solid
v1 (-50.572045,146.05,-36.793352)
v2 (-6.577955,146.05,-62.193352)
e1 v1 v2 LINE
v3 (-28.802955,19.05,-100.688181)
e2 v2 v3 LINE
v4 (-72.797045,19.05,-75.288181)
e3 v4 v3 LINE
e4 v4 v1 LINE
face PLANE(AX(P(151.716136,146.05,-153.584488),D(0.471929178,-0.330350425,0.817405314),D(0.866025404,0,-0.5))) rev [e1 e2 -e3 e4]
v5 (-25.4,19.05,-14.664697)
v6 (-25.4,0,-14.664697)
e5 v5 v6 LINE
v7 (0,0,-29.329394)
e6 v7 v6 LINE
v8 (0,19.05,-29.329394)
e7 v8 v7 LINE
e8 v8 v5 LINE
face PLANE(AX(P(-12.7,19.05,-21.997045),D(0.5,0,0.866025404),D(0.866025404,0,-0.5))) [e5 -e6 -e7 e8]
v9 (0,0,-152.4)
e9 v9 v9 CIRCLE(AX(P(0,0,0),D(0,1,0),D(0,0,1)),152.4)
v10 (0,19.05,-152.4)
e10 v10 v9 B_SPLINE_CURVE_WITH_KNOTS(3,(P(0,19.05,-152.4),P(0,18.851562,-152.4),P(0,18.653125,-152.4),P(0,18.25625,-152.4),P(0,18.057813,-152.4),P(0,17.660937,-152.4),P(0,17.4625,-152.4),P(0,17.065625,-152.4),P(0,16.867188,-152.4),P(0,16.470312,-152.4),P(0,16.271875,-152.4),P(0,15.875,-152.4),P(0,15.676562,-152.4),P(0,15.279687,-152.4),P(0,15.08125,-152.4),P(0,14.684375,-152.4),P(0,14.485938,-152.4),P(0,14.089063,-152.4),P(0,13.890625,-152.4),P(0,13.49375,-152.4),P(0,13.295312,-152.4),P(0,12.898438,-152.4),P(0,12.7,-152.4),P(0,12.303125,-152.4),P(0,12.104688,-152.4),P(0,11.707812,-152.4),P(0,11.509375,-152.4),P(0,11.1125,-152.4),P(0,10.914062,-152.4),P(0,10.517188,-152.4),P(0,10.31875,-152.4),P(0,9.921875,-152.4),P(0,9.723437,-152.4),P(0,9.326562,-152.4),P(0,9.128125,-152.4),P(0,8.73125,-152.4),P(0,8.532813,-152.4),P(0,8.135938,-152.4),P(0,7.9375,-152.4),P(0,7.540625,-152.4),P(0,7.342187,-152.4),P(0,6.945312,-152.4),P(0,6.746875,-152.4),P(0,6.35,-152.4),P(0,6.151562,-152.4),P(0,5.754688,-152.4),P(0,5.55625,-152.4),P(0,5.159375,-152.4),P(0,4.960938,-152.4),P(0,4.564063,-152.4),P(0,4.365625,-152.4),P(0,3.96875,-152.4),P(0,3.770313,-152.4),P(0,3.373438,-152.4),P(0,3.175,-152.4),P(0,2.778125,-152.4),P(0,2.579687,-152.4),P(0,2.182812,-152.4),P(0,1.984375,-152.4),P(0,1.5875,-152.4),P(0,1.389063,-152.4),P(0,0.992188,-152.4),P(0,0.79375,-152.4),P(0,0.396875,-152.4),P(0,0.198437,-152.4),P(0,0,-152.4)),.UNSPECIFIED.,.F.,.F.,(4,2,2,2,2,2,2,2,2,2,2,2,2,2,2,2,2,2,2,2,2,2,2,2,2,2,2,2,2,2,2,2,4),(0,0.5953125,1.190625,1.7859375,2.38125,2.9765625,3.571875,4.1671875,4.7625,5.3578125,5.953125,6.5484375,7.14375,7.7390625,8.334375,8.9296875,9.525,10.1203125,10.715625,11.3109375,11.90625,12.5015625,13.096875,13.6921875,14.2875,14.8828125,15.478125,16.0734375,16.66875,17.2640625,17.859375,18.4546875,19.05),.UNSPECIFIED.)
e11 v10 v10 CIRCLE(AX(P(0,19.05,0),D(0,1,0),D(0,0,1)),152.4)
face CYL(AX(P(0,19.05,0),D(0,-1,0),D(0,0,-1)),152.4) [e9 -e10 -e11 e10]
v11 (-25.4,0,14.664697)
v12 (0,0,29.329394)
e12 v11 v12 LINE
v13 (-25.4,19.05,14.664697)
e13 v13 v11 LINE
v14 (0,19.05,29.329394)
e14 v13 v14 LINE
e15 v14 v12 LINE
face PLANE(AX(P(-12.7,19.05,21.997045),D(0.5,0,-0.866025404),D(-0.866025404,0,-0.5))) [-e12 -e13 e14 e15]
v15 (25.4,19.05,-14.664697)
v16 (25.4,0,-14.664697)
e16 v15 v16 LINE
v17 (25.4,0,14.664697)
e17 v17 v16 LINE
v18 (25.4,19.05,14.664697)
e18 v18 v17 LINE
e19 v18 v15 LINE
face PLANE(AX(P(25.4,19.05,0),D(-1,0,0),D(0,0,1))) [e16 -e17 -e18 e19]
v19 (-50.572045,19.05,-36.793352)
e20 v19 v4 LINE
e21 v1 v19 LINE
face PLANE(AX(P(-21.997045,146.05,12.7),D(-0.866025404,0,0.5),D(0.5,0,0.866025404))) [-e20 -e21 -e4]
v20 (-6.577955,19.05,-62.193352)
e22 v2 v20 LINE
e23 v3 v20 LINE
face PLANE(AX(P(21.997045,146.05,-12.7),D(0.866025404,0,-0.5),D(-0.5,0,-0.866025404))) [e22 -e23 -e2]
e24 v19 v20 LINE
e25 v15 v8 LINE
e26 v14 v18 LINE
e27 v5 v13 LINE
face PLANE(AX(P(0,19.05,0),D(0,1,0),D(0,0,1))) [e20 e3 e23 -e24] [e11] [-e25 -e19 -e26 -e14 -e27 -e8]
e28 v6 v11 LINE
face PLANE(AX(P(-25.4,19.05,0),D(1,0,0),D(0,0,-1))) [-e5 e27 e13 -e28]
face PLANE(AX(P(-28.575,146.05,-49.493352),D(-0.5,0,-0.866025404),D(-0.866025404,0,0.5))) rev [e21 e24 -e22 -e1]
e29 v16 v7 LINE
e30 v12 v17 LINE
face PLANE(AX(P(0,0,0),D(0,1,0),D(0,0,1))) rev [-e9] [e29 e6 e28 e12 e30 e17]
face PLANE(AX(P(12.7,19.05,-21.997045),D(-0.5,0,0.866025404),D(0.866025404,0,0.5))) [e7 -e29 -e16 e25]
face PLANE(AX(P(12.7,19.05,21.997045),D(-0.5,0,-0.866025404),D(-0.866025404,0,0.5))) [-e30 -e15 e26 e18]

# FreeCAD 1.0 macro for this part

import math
import FreeCAD as App
import Part
import Sketcher

V = App.Vector
Q = App.Units.Quantity

doc = App.newDocument("Part")
params = doc.addObject("Spreadsheet::Sheet", "Params")
for row, (alias, value) in enumerate([
    ("sketch1_radius", "6 in"),
    ("pad1_length", "0.75 in"),
    ("sketch2_length", "2 in"),
    ("sketch2_length2", "1.75 in"),
    ("pad2_length", "5 in"),
    ("sketch3_height", "5 in"),
    ("sketch3_width", "1.75 in"),
], start=1):
    params.set(f"A{row}", alias)
    params.set(f"B{row}", "=" + value)
    params.setAlias(f"B{row}", alias)

body = doc.addObject("PartDesign::Body", "Body")

# Sketch on XZ plane
sketch1 = body.newObject("Sketcher::SketchObject", "Sketch")
sketch1.AttachmentSupport = (doc.getObject("XZ_Plane"), [""])
sketch1.MapMode = "FlatFace"
sketch1.addGeometry(Part.ArcOfCircle(Part.Circle(V(0, 0, 0), V(0, 0, 1), 152.4), math.radians(-180), math.radians(-167.975301)), False)
sketch1.addGeometry(Part.ArcOfCircle(Part.Circle(V(0, 0, 0), V(0, 0, 1), 152.4), math.radians(90), math.radians(180)), False)
sketch1.addGeometry(Part.ArcOfCircle(Part.Circle(V(0, 0, 0), V(0, 0, 1), 152.4), math.radians(77.975301), math.radians(90)), False)
sketch1.addGeometry(Part.ArcOfCircle(Part.Circle(V(0, 0, 0), V(0, 0, 1), 152.4), math.radians(12.024699), math.radians(77.975301)), False)
sketch1.addGeometry(Part.ArcOfCircle(Part.Circle(V(0, 0, 0), V(0, 0, 1), 152.4), math.radians(0), math.radians(12.024699)), False)
sketch1.addGeometry(Part.ArcOfCircle(Part.Circle(V(0, 0, 0), V(0, 0, 1), 152.4), math.radians(-90), math.radians(0)), False)
sketch1.addGeometry(Part.ArcOfCircle(Part.Circle(V(0, 0, 0), V(0, 0, 1), 152.4), math.radians(-102.024699), math.radians(-90)), False)
sketch1.addGeometry(Part.ArcOfCircle(Part.Circle(V(0, 0, 0), V(0, 0, 1), 152.4), math.radians(-167.975301), math.radians(-102.024699)), False)
sketch1.addGeometry(Part.LineSegment(V(-25.4, -14.664697, 0), V(0, -29.329394, 0)), False)
sketch1.addGeometry(Part.LineSegment(V(0, -29.329394, 0), V(25.4, -14.664697, 0)), False)
sketch1.addGeometry(Part.LineSegment(V(25.4, -14.664697, 0), V(25.4, 14.664697, 0)), False)
sketch1.addGeometry(Part.LineSegment(V(25.4, 14.664697, 0), V(0, 29.329394, 0)), False)
sketch1.addGeometry(Part.LineSegment(V(0, 29.329394, 0), V(-25.4, 14.664697, 0)), False)
sketch1.addGeometry(Part.LineSegment(V(-25.4, 14.664697, 0), V(-25.4, -14.664697, 0)), False)
sketch1.addConstraint(Sketcher.Constraint("Tangent", 0, 1, 1, 2))
sketch1.addConstraint(Sketcher.Constraint("Tangent", 1, 1, 2, 2))
sketch1.addConstraint(Sketcher.Constraint("Tangent", 2, 1, 3, 2))
sketch1.addConstraint(Sketcher.Constraint("Tangent", 3, 1, 4, 2))
sketch1.addConstraint(Sketcher.Constraint("Tangent", 4, 1, 5, 2))
sketch1.addConstraint(Sketcher.Constraint("Tangent", 5, 1, 6, 2))
sketch1.addConstraint(Sketcher.Constraint("Tangent", 6, 1, 7, 2))
sketch1.addConstraint(Sketcher.Constraint("Tangent", 7, 1, 0, 2))
sketch1.addConstraint(Sketcher.Constraint("Coincident", 8, 2, 9, 1))
sketch1.addConstraint(Sketcher.Constraint("Coincident", 9, 2, 10, 1))
sketch1.addConstraint(Sketcher.Constraint("Coincident", 10, 2, 11, 1))
sketch1.addConstraint(Sketcher.Constraint("Coincident", 11, 2, 12, 1))
sketch1.addConstraint(Sketcher.Constraint("Coincident", 12, 2, 13, 1))
sketch1.addConstraint(Sketcher.Constraint("Coincident", 13, 2, 8, 1))
sketch1.addConstraint(Sketcher.Constraint("Vertical", 10))
sketch1.addConstraint(Sketcher.Constraint("Vertical", 13))
sketch1.addConstraint(Sketcher.Constraint("Coincident", 0, 3, -1, 1))
sketch1.addConstraint(Sketcher.Constraint("Coincident", 2, 3, -1, 1))
sketch1.addConstraint(Sketcher.Constraint("Coincident", 4, 3, -1, 1))
sketch1.addConstraint(Sketcher.Constraint("Equal", 4, 5))
sketch1.addConstraint(Sketcher.Constraint("Symmetric", 8, 2, 11, 2, -1, 1))
sketch1.addConstraint(Sketcher.Constraint("Symmetric", 9, 2, 12, 2, -1, 1))
sketch1.addConstraint(Sketcher.Constraint("PointOnObject", 0, 1, -1))
sketch1.addConstraint(Sketcher.Constraint("PointOnObject", 1, 1, -2))
sketch1.addConstraint(Sketcher.Constraint("PointOnObject", 4, 1, -1))
sketch1.addConstraint(Sketcher.Constraint("PointOnObject", 5, 1, -2))
sketch1.addConstraint(Sketcher.Constraint("PointOnObject", 8, 2, -2))
sketch1.addConstraint(Sketcher.Constraint("Parallel", 8, 11))
sketch1.addConstraint(Sketcher.Constraint("Horizontal", 10, 2, 12, 2))
sketch1.addConstraint(Sketcher.Constraint("Radius", 0, Q("6 in")))
sketch1.addConstraint(Sketcher.Constraint("DistanceX", -1, 1, 9, 2, Q("1 in")))
sketch1.addConstraint(Sketcher.Constraint("Angle", 8, Q("-30 deg")))
sketch1.addConstraint(Sketcher.Constraint("DistanceX", -1, 1, 2, 1, Q("1.25 in")))
sketch1.addConstraint(Sketcher.Constraint("DistanceY", -1, 1, 3, 1, Q("1.25 in")))
sketch1.addConstraint(Sketcher.Constraint("DistanceX", 6, 1, -1, 1, Q("1.25 in")))
sketch1.addConstraint(Sketcher.Constraint("DistanceY", 7, 1, -1, 1, Q("1.25 in")))
sketch1.addConstraint(Sketcher.Constraint("DistanceY", 10, 1, 10, 2, Q("29.329394 mm")))
sketch1.setExpression("Constraints[29]", "Params.sketch1_radius")
pad1 = body.newObject("PartDesign::Pad", "Pad")
pad1.Profile = sketch1
pad1.setExpression("Length", "Params.pad1_length")
pad1.Reversed = True

# Sketch on XZ plane
sketch2 = body.newObject("Sketcher::SketchObject", "Sketch001")
sketch2.AttachmentSupport = (doc.getObject("XZ_Plane"), [""])
sketch2.MapMode = "FlatFace"
sketch2.AttachmentOffset = App.Placement(V(0, 0, -0.75 * 25.4), App.Rotation())
sketch2.addGeometry(Part.LineSegment(V(-72.797045, -75.288181, 0), V(-50.572045, -36.793352, 0)), False)
sketch2.addGeometry(Part.LineSegment(V(-50.572045, -36.793352, 0), V(-6.577955, -62.193352, 0)), False)
sketch2.addGeometry(Part.LineSegment(V(-6.577955, -62.193352, 0), V(-28.802955, -100.688181, 0)), False)
sketch2.addGeometry(Part.LineSegment(V(-28.802955, -100.688181, 0), V(-72.797045, -75.288181, 0)), False)
sketch2.addConstraint(Sketcher.Constraint("Coincident", 0, 2, 1, 1))
sketch2.addConstraint(Sketcher.Constraint("Coincident", 1, 2, 2, 1))
sketch2.addConstraint(Sketcher.Constraint("Coincident", 2, 2, 3, 1))
sketch2.addConstraint(Sketcher.Constraint("Coincident", 3, 2, 0, 1))
sketch2.addConstraint(Sketcher.Constraint("Perpendicular", 0, 1))
sketch2.addConstraint(Sketcher.Constraint("Perpendicular", 1, 2))
sketch2.addConstraint(Sketcher.Constraint("Perpendicular", 2, 3))
sketch2.addConstraint(Sketcher.Constraint("Distance", 1, Q("2 in")))
sketch2.addConstraint(Sketcher.Constraint("Angle", 0, Q("60 deg")))
sketch2.addConstraint(Sketcher.Constraint("Distance", 0, Q("1.75 in")))
sketch2.addConstraint(Sketcher.Constraint("DistanceY", 0, 2, -1, 1, Q("36.793352 mm")))
sketch2.addConstraint(Sketcher.Constraint("DistanceX", 0, 2, -1, 1, Q("50.572045 mm")))
sketch2.setExpression("Constraints[7]", "Params.sketch2_length")
sketch2.setExpression("Constraints[9]", "Params.sketch2_length2")
pad2 = body.newObject("PartDesign::Pad", "Pad001")
pad2.Profile = sketch2
pad2.setExpression("Length", "Params.pad2_length")
pad2.Reversed = True

# Sketch on an angled plane
sketch3 = body.newObject("Sketcher::SketchObject", "Sketch002")
sketch3.Placement = App.Placement(V(-21.997045, 0, 12.7), App.Rotation(V(0.5, 0, 0.866025404), V(0, 1, 0), V(-0.866025404, 0, 0.5), "ZXY"))
sketch3.addGeometry(Part.LineSegment(V(-101.6, 146.05, 0), V(-101.6, 19.05, 0)), False)
sketch3.addGeometry(Part.LineSegment(V(-101.6, 19.05, 0), V(-57.15, 146.05, 0)), False)
sketch3.addGeometry(Part.LineSegment(V(-57.15, 146.05, 0), V(-101.6, 146.05, 0)), False)
sketch3.addConstraint(Sketcher.Constraint("Coincident", 0, 2, 1, 1))
sketch3.addConstraint(Sketcher.Constraint("Coincident", 1, 2, 2, 1))
sketch3.addConstraint(Sketcher.Constraint("Coincident", 2, 2, 0, 1))
sketch3.addConstraint(Sketcher.Constraint("Vertical", 0))
sketch3.addConstraint(Sketcher.Constraint("Horizontal", 2))
sketch3.addConstraint(Sketcher.Constraint("DistanceY", 0, 2, 0, 1, Q("5 in")))
sketch3.addConstraint(Sketcher.Constraint("DistanceX", 0, 2, -1, 1, Q("4 in")))
sketch3.addConstraint(Sketcher.Constraint("DistanceX", 2, 2, 2, 1, Q("1.75 in")))
sketch3.addConstraint(Sketcher.Constraint("DistanceY", -1, 1, 0, 2, Q("0.75 in")))
sketch3.setExpression("Constraints[5]", "Params.sketch3_height")
sketch3.setExpression("Constraints[7]", "Params.sketch3_width")
pocket1 = body.newObject("PartDesign::Pocket", "Pocket")
pocket1.Profile = sketch3
pocket1.Type = "ThroughAll"

doc.recompute()
